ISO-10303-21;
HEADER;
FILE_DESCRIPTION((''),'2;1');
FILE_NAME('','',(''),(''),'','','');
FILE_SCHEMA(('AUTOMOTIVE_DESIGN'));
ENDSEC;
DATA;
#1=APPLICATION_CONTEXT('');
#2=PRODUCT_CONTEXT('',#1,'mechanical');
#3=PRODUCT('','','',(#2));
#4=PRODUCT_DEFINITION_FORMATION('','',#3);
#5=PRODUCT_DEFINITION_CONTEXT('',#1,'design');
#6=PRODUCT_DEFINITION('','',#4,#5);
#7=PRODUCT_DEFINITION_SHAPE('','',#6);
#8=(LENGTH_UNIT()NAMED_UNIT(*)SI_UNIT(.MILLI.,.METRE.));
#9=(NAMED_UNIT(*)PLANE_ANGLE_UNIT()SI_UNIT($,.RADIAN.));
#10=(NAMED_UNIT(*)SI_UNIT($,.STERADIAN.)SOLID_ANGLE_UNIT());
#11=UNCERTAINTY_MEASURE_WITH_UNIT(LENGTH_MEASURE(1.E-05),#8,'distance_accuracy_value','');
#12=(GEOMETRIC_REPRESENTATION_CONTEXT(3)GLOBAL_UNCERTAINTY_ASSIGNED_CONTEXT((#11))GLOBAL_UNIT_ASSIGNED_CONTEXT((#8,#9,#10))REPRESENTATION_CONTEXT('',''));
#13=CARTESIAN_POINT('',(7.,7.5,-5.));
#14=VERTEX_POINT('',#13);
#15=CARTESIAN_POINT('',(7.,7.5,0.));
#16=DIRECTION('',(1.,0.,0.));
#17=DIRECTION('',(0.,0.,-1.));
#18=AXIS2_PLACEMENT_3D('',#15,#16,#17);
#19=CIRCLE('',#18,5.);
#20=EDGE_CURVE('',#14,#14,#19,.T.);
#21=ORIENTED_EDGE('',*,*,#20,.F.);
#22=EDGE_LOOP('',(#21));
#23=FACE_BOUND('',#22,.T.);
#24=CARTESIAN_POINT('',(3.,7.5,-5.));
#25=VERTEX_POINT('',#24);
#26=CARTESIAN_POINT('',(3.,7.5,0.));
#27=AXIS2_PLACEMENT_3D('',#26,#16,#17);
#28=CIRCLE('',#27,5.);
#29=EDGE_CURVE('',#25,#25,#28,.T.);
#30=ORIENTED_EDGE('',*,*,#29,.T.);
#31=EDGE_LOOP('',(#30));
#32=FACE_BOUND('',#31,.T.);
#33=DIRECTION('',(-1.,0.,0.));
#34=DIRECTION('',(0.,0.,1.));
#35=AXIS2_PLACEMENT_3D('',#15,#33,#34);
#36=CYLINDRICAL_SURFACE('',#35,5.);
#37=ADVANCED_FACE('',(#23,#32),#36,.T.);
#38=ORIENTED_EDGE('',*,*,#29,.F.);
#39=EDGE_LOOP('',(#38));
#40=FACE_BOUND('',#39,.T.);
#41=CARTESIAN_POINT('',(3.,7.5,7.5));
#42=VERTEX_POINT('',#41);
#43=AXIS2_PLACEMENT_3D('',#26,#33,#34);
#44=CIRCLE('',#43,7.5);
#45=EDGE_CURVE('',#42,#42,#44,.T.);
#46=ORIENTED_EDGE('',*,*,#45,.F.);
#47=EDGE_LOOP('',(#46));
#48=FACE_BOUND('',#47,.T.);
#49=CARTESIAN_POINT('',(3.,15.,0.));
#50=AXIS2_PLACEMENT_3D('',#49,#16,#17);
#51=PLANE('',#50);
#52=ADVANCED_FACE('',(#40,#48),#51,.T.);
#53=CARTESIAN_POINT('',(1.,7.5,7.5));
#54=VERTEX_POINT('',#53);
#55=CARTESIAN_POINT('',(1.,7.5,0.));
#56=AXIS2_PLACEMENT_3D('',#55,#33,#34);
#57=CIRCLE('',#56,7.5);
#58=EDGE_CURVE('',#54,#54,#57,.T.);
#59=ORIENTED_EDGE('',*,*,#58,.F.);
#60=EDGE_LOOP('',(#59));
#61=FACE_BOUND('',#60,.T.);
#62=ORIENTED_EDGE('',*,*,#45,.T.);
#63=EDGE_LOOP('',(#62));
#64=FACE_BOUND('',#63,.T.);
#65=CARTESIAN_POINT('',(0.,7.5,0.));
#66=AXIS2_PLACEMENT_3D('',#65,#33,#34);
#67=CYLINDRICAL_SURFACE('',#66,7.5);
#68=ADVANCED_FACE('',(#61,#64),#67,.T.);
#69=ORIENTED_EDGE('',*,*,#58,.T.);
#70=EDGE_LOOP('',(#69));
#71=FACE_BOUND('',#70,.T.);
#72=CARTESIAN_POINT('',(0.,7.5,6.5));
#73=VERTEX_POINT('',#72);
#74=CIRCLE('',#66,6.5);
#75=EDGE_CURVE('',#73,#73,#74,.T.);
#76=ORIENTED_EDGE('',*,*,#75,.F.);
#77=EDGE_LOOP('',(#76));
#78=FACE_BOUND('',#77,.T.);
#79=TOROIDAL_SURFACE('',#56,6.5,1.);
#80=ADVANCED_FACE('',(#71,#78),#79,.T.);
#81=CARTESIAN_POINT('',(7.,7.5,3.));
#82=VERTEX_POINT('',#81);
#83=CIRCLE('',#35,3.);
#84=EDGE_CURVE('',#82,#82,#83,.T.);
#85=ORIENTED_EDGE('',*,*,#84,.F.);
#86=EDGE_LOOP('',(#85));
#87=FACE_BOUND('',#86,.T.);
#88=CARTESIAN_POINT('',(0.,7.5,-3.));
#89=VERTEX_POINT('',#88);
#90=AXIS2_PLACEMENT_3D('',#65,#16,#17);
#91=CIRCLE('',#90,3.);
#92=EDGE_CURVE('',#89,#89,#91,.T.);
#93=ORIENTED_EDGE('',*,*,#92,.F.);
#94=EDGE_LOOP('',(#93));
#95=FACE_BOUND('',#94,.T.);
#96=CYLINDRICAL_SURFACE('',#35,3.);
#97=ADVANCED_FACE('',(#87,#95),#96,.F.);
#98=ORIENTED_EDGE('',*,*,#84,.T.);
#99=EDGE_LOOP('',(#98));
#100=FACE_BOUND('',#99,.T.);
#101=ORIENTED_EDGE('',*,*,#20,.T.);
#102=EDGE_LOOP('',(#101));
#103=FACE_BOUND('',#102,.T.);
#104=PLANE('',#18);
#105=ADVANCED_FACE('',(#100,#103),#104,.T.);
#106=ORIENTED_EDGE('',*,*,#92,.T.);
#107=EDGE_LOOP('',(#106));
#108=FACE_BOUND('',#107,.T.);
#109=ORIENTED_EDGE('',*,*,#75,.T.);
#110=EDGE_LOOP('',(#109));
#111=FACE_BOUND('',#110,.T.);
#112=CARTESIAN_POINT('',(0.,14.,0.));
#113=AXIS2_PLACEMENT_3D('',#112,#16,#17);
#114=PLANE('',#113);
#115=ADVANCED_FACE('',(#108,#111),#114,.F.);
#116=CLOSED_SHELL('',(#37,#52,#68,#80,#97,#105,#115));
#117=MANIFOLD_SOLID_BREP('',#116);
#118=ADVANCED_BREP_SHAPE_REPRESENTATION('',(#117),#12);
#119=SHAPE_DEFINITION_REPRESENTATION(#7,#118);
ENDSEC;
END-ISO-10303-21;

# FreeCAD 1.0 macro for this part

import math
import FreeCAD as App
import Part
import Sketcher

V = App.Vector

doc = App.newDocument("Part")
body = doc.addObject("PartDesign::Body", "Body")

# Sketch on XY plane
sketch1 = body.newObject("Sketcher::SketchObject", "Sketch")
sketch1.AttachmentSupport = (doc.getObject("XY_Plane"), [""])
sketch1.MapMode = "FlatFace"
sketch1.addGeometry(Part.LineSegment(V(1, 0, 0), V(3, 0, 0)), False)
sketch1.addGeometry(Part.LineSegment(V(3, 0, 0), V(3, 7.5, 0)), False)
sketch1.addGeometry(Part.LineSegment(V(3, 7.5, 0), V(0, 7.5, 0)), False)
sketch1.addGeometry(Part.LineSegment(V(0, 7.5, 0), V(0, 1, 0)), False)
sketch1.addGeometry(Part.ArcOfCircle(Part.Circle(V(1, 1, 0), V(0, 0, 1), 1), math.radians(-180), math.radians(-90)), False)
sketch1.addGeometry(Part.LineSegment(V(0, 7.5, 0), V(3, 7.5, 0)), True)  # axis
sketch1.addConstraint(Sketcher.Constraint("Coincident", 0, 2, 1, 1))
sketch1.addConstraint(Sketcher.Constraint("Coincident", 1, 2, 2, 1))
sketch1.addConstraint(Sketcher.Constraint("Coincident", 2, 2, 3, 1))
sketch1.addConstraint(Sketcher.Constraint("Tangent", 3, 2, 4, 1))
sketch1.addConstraint(Sketcher.Constraint("Tangent", 4, 2, 0, 1))
sketch1.addConstraint(Sketcher.Constraint("Horizontal", 0))
sketch1.addConstraint(Sketcher.Constraint("Vertical", 1))
sketch1.addConstraint(Sketcher.Constraint("Horizontal", 2))
sketch1.addConstraint(Sketcher.Constraint("Vertical", 3))
sketch1.addConstraint(Sketcher.Constraint("Horizontal", 5))
sketch1.addConstraint(Sketcher.Constraint("Coincident", 5, 1, 2, 2))
sketch1.addConstraint(Sketcher.Constraint("PointOnObject", 0, 2, -1))
sketch1.addConstraint(Sketcher.Constraint("PointOnObject", 2, 2, -2))
sketch1.addConstraint(Sketcher.Constraint("Vertical", 0, 2, 5, 2))
sketch1.addConstraint(Sketcher.Constraint("Radius", 4, 1.0))
sketch1.addConstraint(Sketcher.Constraint("DistanceX", 0, 1, 0, 2, 2.0))
sketch1.addConstraint(Sketcher.Constraint("DistanceY", 1, 1, 1, 2, 7.5))
revolution = body.newObject("PartDesign::Revolution", "Revolution")
revolution.Profile = sketch1
revolution.ReferenceAxis = (sketch1, ["Axis0"])
revolution.Angle = 360

# Sketch on YZ plane
sketch2 = body.newObject("Sketcher::SketchObject", "Sketch001")
sketch2.AttachmentSupport = (doc.getObject("YZ_Plane"), [""])
sketch2.MapMode = "FlatFace"
sketch2.AttachmentOffset = App.Placement(V(0, 0, 3), App.Rotation())
sketch2.addGeometry(Part.Circle(V(7.5, 0, 0), V(0, 0, 1), 5), False)
sketch2.addConstraint(Sketcher.Constraint("PointOnObject", 0, 3, -1))
sketch2.addConstraint(Sketcher.Constraint("Diameter", 0, 10.0))
sketch2.addConstraint(Sketcher.Constraint("DistanceX", -1, 1, 0, 3, 7.5))
pad1 = body.newObject("PartDesign::Pad", "Pad")
pad1.Profile = sketch2
pad1.Length = 4

# Sketch on YZ plane
sketch3 = body.newObject("Sketcher::SketchObject", "Sketch002")
sketch3.AttachmentSupport = (doc.getObject("YZ_Plane"), [""])
sketch3.MapMode = "FlatFace"
sketch3.addGeometry(Part.Circle(V(7.5, 0, 0), V(0, 0, 1), 3), False)
sketch3.addConstraint(Sketcher.Constraint("PointOnObject", 0, 3, -1))
sketch3.addConstraint(Sketcher.Constraint("Diameter", 0, 6.0))
sketch3.addConstraint(Sketcher.Constraint("DistanceX", -1, 1, 0, 3, 7.5))
pocket1 = body.newObject("PartDesign::Pocket", "Pocket")
pocket1.Profile = sketch3
pocket1.Type = "ThroughAll"
pocket1.Midplane = True

doc.recompute()
